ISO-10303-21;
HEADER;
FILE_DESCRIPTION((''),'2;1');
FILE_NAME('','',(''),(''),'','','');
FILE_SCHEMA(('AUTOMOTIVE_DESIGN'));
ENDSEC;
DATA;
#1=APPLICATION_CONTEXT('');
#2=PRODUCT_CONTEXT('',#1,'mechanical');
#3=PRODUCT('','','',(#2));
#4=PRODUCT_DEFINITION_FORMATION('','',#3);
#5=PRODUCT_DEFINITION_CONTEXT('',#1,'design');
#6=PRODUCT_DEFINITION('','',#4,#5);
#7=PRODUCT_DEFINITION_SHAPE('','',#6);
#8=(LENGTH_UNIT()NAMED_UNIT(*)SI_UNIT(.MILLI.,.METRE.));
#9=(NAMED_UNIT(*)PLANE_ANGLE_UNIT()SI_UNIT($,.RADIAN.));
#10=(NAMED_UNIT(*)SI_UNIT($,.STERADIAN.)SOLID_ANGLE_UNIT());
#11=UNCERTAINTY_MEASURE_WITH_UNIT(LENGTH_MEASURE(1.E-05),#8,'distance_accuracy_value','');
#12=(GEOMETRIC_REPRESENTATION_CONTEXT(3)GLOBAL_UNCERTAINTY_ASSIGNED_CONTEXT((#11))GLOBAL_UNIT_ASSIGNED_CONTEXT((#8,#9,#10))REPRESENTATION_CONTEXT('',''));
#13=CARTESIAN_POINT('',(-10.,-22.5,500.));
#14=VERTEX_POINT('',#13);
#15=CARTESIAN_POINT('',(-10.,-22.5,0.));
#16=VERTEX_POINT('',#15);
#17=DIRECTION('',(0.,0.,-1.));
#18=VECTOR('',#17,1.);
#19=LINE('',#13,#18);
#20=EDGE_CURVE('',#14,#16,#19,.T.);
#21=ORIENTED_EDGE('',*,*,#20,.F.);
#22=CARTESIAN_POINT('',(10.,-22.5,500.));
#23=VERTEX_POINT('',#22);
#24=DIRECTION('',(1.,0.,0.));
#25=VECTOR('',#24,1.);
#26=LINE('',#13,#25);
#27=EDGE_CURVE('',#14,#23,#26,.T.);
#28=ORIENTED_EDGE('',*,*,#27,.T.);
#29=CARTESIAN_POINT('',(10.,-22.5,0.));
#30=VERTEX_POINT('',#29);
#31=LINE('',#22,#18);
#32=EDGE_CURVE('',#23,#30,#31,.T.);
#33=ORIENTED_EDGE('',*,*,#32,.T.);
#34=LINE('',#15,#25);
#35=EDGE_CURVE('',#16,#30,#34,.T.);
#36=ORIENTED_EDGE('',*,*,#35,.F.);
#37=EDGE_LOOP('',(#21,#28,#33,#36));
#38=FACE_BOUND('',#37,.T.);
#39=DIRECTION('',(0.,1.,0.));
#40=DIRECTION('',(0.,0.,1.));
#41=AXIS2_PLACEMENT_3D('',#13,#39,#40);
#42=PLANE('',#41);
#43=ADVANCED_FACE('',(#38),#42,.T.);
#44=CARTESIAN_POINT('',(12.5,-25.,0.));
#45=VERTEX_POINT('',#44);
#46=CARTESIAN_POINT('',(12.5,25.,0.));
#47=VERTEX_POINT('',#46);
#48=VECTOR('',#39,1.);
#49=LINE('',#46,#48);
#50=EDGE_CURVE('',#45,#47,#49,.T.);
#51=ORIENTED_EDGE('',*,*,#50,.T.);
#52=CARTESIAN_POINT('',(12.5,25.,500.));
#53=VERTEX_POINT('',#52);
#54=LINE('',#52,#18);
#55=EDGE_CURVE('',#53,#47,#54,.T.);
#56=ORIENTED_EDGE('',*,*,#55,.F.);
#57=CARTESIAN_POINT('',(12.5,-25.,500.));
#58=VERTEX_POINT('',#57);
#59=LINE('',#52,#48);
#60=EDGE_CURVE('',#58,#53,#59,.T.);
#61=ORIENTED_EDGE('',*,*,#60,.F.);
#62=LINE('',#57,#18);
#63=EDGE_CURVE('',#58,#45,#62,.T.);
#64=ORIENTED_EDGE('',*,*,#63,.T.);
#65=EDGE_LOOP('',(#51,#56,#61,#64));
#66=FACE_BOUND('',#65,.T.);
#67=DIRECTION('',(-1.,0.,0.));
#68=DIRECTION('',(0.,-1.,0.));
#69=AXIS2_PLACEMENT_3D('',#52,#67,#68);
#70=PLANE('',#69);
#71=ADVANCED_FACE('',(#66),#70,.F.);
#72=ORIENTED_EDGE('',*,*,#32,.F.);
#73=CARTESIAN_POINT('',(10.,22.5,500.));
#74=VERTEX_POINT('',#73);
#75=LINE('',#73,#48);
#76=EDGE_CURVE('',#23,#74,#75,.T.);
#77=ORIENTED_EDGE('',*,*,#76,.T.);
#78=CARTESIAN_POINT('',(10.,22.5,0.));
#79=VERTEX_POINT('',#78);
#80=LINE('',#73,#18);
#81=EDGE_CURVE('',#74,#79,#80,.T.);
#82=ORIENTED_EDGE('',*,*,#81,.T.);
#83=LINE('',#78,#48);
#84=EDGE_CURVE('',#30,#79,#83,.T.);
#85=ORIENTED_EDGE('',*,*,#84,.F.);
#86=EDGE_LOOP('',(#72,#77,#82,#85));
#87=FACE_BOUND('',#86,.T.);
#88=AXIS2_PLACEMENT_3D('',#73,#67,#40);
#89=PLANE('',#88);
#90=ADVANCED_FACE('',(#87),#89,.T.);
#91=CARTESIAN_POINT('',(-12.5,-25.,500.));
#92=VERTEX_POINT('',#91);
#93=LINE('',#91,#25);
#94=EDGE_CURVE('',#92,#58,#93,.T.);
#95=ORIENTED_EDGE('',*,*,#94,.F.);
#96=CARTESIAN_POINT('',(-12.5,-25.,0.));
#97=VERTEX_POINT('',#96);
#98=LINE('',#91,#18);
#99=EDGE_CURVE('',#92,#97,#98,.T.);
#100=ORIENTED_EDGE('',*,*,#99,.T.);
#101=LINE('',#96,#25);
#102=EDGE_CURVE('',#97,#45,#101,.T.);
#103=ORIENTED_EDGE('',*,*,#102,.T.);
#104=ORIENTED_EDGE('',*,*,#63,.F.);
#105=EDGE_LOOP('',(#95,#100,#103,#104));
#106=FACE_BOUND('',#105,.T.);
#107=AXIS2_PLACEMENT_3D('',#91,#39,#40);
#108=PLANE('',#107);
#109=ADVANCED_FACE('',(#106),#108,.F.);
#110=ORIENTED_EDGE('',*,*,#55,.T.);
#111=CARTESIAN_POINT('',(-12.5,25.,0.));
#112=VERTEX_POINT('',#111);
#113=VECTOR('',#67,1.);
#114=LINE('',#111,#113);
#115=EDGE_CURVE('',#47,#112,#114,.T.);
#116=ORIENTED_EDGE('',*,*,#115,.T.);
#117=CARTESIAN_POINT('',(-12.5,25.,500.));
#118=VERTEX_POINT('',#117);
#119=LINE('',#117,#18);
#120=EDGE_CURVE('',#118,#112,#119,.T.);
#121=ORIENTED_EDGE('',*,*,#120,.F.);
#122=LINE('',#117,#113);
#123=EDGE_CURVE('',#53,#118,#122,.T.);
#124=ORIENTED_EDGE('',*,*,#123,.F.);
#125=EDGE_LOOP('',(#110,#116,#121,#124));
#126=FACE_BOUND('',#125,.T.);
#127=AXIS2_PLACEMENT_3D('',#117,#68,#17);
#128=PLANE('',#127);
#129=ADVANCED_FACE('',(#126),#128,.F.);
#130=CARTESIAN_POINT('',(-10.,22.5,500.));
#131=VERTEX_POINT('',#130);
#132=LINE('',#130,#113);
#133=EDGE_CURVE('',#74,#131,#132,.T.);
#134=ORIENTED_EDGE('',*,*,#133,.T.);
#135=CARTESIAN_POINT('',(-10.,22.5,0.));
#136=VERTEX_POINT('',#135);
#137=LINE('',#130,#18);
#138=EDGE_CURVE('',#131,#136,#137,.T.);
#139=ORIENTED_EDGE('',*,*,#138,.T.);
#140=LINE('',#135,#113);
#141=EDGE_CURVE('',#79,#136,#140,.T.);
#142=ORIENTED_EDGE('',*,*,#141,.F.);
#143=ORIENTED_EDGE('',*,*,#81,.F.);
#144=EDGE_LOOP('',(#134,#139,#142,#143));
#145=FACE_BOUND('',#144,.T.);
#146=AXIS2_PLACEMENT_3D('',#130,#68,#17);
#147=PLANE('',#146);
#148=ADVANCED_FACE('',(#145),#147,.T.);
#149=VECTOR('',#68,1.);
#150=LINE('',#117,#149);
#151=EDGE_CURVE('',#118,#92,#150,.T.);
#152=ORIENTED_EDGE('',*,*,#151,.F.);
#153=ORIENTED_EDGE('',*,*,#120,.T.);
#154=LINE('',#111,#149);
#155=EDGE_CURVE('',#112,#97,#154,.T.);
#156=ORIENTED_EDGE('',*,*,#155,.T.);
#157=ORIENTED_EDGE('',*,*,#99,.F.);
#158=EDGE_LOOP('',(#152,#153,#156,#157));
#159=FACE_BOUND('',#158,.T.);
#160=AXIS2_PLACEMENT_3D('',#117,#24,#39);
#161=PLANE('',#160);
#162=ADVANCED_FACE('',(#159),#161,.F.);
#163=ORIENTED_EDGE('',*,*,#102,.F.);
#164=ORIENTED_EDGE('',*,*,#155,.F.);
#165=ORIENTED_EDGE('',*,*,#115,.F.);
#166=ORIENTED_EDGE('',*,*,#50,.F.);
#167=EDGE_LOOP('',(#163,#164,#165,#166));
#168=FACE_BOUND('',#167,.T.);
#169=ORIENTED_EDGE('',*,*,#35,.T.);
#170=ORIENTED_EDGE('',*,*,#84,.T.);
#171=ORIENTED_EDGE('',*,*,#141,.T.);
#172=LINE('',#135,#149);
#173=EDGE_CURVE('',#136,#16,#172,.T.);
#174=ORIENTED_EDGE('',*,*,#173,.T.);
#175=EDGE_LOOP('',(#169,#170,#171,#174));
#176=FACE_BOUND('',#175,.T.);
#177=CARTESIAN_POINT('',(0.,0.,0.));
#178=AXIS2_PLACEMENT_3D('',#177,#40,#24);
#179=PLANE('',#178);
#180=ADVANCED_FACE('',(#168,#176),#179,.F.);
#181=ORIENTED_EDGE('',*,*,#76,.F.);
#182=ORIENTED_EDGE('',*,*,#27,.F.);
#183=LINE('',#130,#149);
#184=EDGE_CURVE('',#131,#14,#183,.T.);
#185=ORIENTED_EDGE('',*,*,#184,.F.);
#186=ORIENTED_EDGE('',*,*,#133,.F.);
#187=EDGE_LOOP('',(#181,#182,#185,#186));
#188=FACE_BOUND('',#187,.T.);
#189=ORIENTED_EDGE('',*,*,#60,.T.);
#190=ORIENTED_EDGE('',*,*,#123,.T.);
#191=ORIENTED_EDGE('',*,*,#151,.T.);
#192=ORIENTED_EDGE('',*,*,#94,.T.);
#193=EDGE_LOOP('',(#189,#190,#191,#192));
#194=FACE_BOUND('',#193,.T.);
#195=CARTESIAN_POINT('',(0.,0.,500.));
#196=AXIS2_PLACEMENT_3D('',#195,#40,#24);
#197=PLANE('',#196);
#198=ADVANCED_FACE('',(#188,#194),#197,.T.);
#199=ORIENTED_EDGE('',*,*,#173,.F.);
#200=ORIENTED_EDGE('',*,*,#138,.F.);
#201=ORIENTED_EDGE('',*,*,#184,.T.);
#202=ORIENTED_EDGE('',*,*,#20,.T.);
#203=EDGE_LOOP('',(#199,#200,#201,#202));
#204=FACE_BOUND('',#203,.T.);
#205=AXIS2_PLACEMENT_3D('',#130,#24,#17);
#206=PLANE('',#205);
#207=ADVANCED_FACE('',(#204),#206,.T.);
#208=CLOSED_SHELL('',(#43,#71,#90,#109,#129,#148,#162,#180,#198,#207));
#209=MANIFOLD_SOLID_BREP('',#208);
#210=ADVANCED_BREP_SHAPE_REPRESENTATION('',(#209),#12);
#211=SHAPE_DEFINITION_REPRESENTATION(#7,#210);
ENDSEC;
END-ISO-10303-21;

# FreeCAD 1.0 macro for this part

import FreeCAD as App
import Part
import Sketcher
from FreeCAD import Vector

doc = App.newDocument("Part")
params = doc.addObject("Spreadsheet::Sheet", "Params")
for row, (alias, value) in enumerate([
    ("sketch1_width", "25 mm"),
    ("sketch1_width2", "20 mm"),
    ("sketch1_height", "50 mm"),
    ("sketch1_height2", "45 mm"),
    ("pad1_length", "500 mm"),
], start=1):
    params.set(f"A{row}", alias)
    params.set(f"B{row}", "=" + value)
    params.setAlias(f"B{row}", alias)

body = doc.addObject("PartDesign::Body", "Body")

sketch1 = body.newObject("Sketcher::SketchObject", "Sketch")
sketch1.AttachmentSupport = (doc.getObject("XY_Plane"), [""])
sketch1.MapMode = "FlatFace"
sketch1.addGeometry(Part.LineSegment(Vector(-12, 25, 0), Vector(-12, -25, 0)), False)
sketch1.addGeometry(Part.LineSegment(Vector(-12, -25, 0), Vector(12, -25, 0)), False)
sketch1.addGeometry(Part.LineSegment(Vector(12, -25, 0), Vector(12, 25, 0)), False)
sketch1.addGeometry(Part.LineSegment(Vector(12, 25, 0), Vector(-12, 25, 0)), False)
sketch1.addGeometry(Part.LineSegment(Vector(10, -22, 0), Vector(-10, -22, 0)), False)
sketch1.addGeometry(Part.LineSegment(Vector(-10, -22, 0), Vector(-10, 22, 0)), False)
sketch1.addGeometry(Part.LineSegment(Vector(-10, 22, 0), Vector(10, 22, 0)), False)
sketch1.addGeometry(Part.LineSegment(Vector(10, 22, 0), Vector(10, -22, 0)), False)
sketch1.addConstraint(Sketcher.Constraint("Coincident", 0, 2, 1, 1))
sketch1.addConstraint(Sketcher.Constraint("Coincident", 1, 2, 2, 1))
sketch1.addConstraint(Sketcher.Constraint("Coincident", 2, 2, 3, 1))
sketch1.addConstraint(Sketcher.Constraint("Coincident", 3, 2, 0, 1))
sketch1.addConstraint(Sketcher.Constraint("Coincident", 4, 2, 5, 1))
sketch1.addConstraint(Sketcher.Constraint("Coincident", 5, 2, 6, 1))
sketch1.addConstraint(Sketcher.Constraint("Coincident", 6, 2, 7, 1))
sketch1.addConstraint(Sketcher.Constraint("Coincident", 7, 2, 4, 1))
sketch1.addConstraint(Sketcher.Constraint("Vertical", 0))
sketch1.addConstraint(Sketcher.Constraint("Horizontal", 1))
sketch1.addConstraint(Sketcher.Constraint("Vertical", 2))
sketch1.addConstraint(Sketcher.Constraint("Horizontal", 3))
sketch1.addConstraint(Sketcher.Constraint("Horizontal", 4))
sketch1.addConstraint(Sketcher.Constraint("Vertical", 5))
sketch1.addConstraint(Sketcher.Constraint("Horizontal", 6))
sketch1.addConstraint(Sketcher.Constraint("Vertical", 7))
sketch1.addConstraint(Sketcher.Constraint("Symmetric", 0, 2, 2, 2, -1, 1))
sketch1.addConstraint(Sketcher.Constraint("Symmetric", 4, 2, 6, 2, -1, 1))
sketch1.addConstraint(Sketcher.Constraint("DistanceX", 1, 1, 1, 2, 25.0))
sketch1.addConstraint(Sketcher.Constraint("DistanceX", 4, 2, 4, 1, 20.0))
sketch1.addConstraint(Sketcher.Constraint("DistanceY", 0, 2, 0, 1, 50.0))
sketch1.addConstraint(Sketcher.Constraint("DistanceY", 5, 1, 5, 2, 45.0))
sketch1.setExpression("Constraints[18]", "Params.sketch1_width")
sketch1.setExpression("Constraints[19]", "Params.sketch1_width2")
sketch1.setExpression("Constraints[20]", "Params.sketch1_height")
sketch1.setExpression("Constraints[21]", "Params.sketch1_height2")
pad1 = body.newObject("PartDesign::Pad", "Pad")
pad1.Profile = sketch1
pad1.setExpression("Length", "Params.pad1_length")

doc.recompute()
